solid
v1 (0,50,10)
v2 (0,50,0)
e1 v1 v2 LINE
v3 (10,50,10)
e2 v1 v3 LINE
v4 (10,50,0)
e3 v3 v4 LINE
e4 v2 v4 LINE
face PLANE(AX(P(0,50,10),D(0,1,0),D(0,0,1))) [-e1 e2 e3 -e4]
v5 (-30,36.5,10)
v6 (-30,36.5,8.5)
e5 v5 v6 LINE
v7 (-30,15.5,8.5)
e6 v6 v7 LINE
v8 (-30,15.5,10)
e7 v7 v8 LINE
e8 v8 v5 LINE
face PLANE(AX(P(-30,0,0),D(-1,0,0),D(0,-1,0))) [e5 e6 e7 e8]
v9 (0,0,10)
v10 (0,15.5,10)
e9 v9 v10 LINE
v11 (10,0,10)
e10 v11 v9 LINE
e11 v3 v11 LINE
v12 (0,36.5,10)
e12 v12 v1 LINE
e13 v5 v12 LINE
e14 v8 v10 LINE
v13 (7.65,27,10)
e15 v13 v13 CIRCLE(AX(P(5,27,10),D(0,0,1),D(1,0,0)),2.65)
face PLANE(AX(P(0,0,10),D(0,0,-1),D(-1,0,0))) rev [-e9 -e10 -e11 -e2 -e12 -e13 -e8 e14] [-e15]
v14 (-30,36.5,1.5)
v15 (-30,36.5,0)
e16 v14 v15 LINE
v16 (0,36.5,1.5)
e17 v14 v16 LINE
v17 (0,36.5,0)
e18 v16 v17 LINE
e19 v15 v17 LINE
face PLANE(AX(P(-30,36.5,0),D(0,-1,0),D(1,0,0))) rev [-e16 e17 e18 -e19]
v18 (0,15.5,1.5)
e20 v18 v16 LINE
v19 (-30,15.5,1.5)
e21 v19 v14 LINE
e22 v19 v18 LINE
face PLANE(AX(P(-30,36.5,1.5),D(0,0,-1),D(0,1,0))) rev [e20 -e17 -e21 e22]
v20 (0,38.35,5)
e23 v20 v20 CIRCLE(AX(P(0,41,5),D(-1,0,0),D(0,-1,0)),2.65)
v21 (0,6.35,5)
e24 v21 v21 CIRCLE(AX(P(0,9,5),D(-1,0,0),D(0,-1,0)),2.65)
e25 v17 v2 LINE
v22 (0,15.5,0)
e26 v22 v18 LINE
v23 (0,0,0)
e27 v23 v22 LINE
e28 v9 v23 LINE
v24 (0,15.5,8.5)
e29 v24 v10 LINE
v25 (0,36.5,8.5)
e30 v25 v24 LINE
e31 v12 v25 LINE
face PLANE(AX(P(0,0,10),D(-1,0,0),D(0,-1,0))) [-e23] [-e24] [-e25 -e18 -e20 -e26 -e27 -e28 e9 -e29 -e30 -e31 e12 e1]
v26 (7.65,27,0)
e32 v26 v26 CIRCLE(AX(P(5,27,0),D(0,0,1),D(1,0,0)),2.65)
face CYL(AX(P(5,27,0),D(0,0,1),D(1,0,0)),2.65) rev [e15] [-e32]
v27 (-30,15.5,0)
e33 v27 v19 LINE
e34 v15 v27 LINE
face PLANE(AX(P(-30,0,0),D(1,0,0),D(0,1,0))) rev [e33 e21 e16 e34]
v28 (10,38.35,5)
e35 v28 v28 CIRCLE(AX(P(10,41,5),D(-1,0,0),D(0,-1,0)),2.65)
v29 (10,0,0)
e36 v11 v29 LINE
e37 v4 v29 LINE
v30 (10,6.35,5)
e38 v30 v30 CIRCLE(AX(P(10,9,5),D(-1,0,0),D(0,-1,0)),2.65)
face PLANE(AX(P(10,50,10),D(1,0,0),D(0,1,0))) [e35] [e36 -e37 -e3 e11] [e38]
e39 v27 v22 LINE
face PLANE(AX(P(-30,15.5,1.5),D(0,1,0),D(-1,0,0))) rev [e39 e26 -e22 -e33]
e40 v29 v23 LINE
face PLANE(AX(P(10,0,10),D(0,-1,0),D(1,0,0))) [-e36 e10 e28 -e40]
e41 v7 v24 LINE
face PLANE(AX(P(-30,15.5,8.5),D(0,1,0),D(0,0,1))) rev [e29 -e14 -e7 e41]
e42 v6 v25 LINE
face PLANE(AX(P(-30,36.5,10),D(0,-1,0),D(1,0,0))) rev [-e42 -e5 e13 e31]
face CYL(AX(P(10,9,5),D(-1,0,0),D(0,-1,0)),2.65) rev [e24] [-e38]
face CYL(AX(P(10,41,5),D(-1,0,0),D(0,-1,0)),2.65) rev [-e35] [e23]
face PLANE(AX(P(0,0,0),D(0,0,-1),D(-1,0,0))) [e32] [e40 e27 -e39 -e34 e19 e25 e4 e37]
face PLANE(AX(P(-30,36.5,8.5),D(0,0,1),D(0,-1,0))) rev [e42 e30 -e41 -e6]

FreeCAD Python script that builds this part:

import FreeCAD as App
import Part
import Sketcher
Q = App.Units.Quantity

doc = App.newDocument("Part")
body = doc.addObject("PartDesign::Body", "Body")

# Sketch on XY plane
sketch1 = body.newObject("Sketcher::SketchObject", "Sketch")
sketch1.AttachmentSupport = (doc.getObject("XY_Plane"), [""])
sketch1.MapMode = "FlatFace"
sketch1.addGeometry(Part.LineSegment(App.Vector(0, 50, 0), App.Vector(0, 0, 0)), False)
sketch1.addGeometry(Part.LineSegment(App.Vector(0, 0, 0), App.Vector(10, 0, 0)), False)
sketch1.addGeometry(Part.LineSegment(App.Vector(10, 0, 0), App.Vector(10, 50, 0)), False)
sketch1.addGeometry(Part.LineSegment(App.Vector(10, 50, 0), App.Vector(0, 50, 0)), False)
sketch1.addConstraint(Sketcher.Constraint("Coincident", 0, 2, 1, 1))
sketch1.addConstraint(Sketcher.Constraint("Coincident", 1, 2, 2, 1))
sketch1.addConstraint(Sketcher.Constraint("Coincident", 2, 2, 3, 1))
sketch1.addConstraint(Sketcher.Constraint("Coincident", 3, 2, 0, 1))
sketch1.addConstraint(Sketcher.Constraint("Vertical", 0))
sketch1.addConstraint(Sketcher.Constraint("Horizontal", 1))
sketch1.addConstraint(Sketcher.Constraint("Vertical", 2))
sketch1.addConstraint(Sketcher.Constraint("Horizontal", 3))
sketch1.addConstraint(Sketcher.Constraint("Coincident", 0, 2, -1, 1))
sketch1.addConstraint(Sketcher.Constraint("DistanceX", 1, 1, 1, 2, Q("10 mm")))
sketch1.addConstraint(Sketcher.Constraint("DistanceY", 0, 2, 0, 1, Q("50 mm")))
pad1 = body.newObject("PartDesign::Pad", "Pad")
pad1.Profile = sketch1
pad1.Length = 10

# Sketch on XY plane
sketch2 = body.newObject("Sketcher::SketchObject", "Sketch001")
sketch2.AttachmentSupport = (doc.getObject("XY_Plane"), [""])
sketch2.MapMode = "FlatFace"
sketch2.AttachmentOffset = App.Placement(App.Vector(0, 0, 10), App.Rotation())
sketch2.addGeometry(Part.Circle(App.Vector(5, 27, 0), App.Vector(0, 0, 1), 2.65), False)
sketch2.addConstraint(Sketcher.Constraint("Diameter", 0, Q("5.3 mm")))
sketch2.addConstraint(Sketcher.Constraint("DistanceX", -1, 1, 0, 3, Q("5 mm")))
sketch2.addConstraint(Sketcher.Constraint("DistanceY", -1, 1, 0, 3, Q("27 mm")))
pocket1 = body.newObject("PartDesign::Pocket", "Pocket")
pocket1.Profile = sketch2
pocket1.Type = "ThroughAll"

# Sketch on YZ plane
sketch3 = body.newObject("Sketcher::SketchObject", "Sketch002")
sketch3.AttachmentSupport = (doc.getObject("YZ_Plane"), [""])
sketch3.MapMode = "FlatFace"
sketch3.addGeometry(Part.Circle(App.Vector(41, 5, 0), App.Vector(0, 0, 1), 2.65), False)
sketch3.addGeometry(Part.Circle(App.Vector(9, 5, 0), App.Vector(0, 0, 1), 2.65), False)
sketch3.addConstraint(Sketcher.Constraint("Equal", 0, 1))
sketch3.addConstraint(Sketcher.Constraint("Horizontal", 0, 3, 1, 3))
sketch3.addConstraint(Sketcher.Constraint("Diameter", 0, Q("5.3 mm")))
sketch3.addConstraint(Sketcher.Constraint("DistanceX", -1, 1, 0, 3, Q("41 mm")))
sketch3.addConstraint(Sketcher.Constraint("DistanceY", -1, 1, 0, 3, Q("5 mm")))
sketch3.addConstraint(Sketcher.Constraint("DistanceX", -1, 1, 1, 3, Q("9 mm")))
pocket2 = body.newObject("PartDesign::Pocket", "Pocket001")
pocket2.Profile = sketch3
pocket2.Type = "ThroughAll"
pocket2.Reversed = True

# Sketch on YZ plane
sketch4 = body.newObject("Sketcher::SketchObject", "Sketch003")
sketch4.AttachmentSupport = (doc.getObject("YZ_Plane"), [""])
sketch4.MapMode = "FlatFace"
sketch4.addGeometry(Part.LineSegment(App.Vector(36.5, 8.5, 0), App.Vector(15.5, 8.5, 0)), False)
sketch4.addGeometry(Part.LineSegment(App.Vector(15.5, 8.5, 0), App.Vector(15.5, 10, 0)), False)
sketch4.addGeometry(Part.LineSegment(App.Vector(15.5, 10, 0), App.Vector(36.5, 10, 0)), False)
sketch4.addGeometry(Part.LineSegment(App.Vector(36.5, 10, 0), App.Vector(36.5, 8.5, 0)), False)
sketch4.addGeometry(Part.LineSegment(App.Vector(36.5, 0, 0), App.Vector(15.5, 0, 0)), False)
sketch4.addGeometry(Part.LineSegment(App.Vector(15.5, 0, 0), App.Vector(15.5, 1.5, 0)), False)
sketch4.addGeometry(Part.LineSegment(App.Vector(15.5, 1.5, 0), App.Vector(36.5, 1.5, 0)), False)
sketch4.addGeometry(Part.LineSegment(App.Vector(36.5, 1.5, 0), App.Vector(36.5, 0, 0)), False)
sketch4.addConstraint(Sketcher.Constraint("Coincident", 0, 2, 1, 1))
sketch4.addConstraint(Sketcher.Constraint("Coincident", 1, 2, 2, 1))
sketch4.addConstraint(Sketcher.Constraint("Coincident", 2, 2, 3, 1))
sketch4.addConstraint(Sketcher.Constraint("Coincident", 3, 2, 0, 1))
sketch4.addConstraint(Sketcher.Constraint("Coincident", 4, 2, 5, 1))
sketch4.addConstraint(Sketcher.Constraint("Coincident", 5, 2, 6, 1))
sketch4.addConstraint(Sketcher.Constraint("Coincident", 6, 2, 7, 1))
sketch4.addConstraint(Sketcher.Constraint("Coincident", 7, 2, 4, 1))
sketch4.addConstraint(Sketcher.Constraint("Horizontal", 0))
sketch4.addConstraint(Sketcher.Constraint("Vertical", 1))
sketch4.addConstraint(Sketcher.Constraint("Horizontal", 2))
sketch4.addConstraint(Sketcher.Constraint("Vertical", 3))
sketch4.addConstraint(Sketcher.Constraint("Horizontal", 4))
sketch4.addConstraint(Sketcher.Constraint("Vertical", 5))
sketch4.addConstraint(Sketcher.Constraint("Horizontal", 6))
sketch4.addConstraint(Sketcher.Constraint("Vertical", 7))
sketch4.addConstraint(Sketcher.Constraint("PointOnObject", 4, 2, -1))
sketch4.addConstraint(Sketcher.Constraint("Vertical", 1, 2, 4, 2))
sketch4.addConstraint(Sketcher.Constraint("Vertical", 3, 2, 6, 2))
sketch4.addConstraint(Sketcher.Constraint("Equal", 3, 5))
sketch4.addConstraint(Sketcher.Constraint("DistanceX", 0, 2, 0, 1, Q("21 mm")))
sketch4.addConstraint(Sketcher.Constraint("DistanceY", 1, 1, 1, 2, Q("1.5 mm")))
sketch4.addConstraint(Sketcher.Constraint("DistanceY", -1, 1, 1, 2, Q("10 mm")))
sketch4.addConstraint(Sketcher.Constraint("DistanceX", -1, 1, 0, 2, Q("15.5 mm")))
pad2 = body.newObject("PartDesign::Pad", "Pad001")
pad2.Profile = sketch4
pad2.Length = 30
pad2.Reversed = True

doc.recompute()
